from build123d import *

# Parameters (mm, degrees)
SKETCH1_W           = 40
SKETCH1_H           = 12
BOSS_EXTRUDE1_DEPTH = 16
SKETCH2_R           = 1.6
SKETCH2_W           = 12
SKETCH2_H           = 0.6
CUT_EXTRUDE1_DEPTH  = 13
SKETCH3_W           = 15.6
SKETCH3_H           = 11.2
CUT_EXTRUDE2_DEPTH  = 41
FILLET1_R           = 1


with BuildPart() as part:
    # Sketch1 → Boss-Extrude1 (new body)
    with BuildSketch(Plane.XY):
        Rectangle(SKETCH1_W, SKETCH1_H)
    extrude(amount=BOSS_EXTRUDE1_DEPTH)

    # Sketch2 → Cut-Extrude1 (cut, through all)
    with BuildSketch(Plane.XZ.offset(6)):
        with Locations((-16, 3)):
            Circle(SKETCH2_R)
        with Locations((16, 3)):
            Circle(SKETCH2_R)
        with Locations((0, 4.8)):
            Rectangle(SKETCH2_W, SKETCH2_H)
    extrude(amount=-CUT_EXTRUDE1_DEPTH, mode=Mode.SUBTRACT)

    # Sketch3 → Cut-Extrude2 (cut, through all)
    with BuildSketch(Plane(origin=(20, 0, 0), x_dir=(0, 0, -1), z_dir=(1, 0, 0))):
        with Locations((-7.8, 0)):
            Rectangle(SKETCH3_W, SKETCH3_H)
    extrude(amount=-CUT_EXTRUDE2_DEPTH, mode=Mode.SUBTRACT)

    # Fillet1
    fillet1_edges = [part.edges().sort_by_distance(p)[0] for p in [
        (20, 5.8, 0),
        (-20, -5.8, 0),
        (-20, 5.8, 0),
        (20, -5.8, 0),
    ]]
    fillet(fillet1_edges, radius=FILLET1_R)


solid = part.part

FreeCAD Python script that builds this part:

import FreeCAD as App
import Part
import Sketcher

V = App.Vector


def edges_at(feature, points):
    """Names of the edges that pass closest to the given points."""
    edges = feature.Shape.Edges
    near = lambda p: min(range(len(edges)), key=lambda i: edges[i].distToShape(Part.Vertex(*p))[0])
    return sorted({f"Edge{near(p) + 1}" for p in points})

doc = App.newDocument("Part")
body = doc.addObject("PartDesign::Body", "Body")

sketch1 = body.newObject("Sketcher::SketchObject", "Sketch")
sketch1.AttachmentSupport = (doc.getObject("XY_Plane"), [""])
sketch1.MapMode = "FlatFace"
sketch1.addGeometry([
    Part.LineSegment(V(-20, 6, 0), V(-20, -6, 0)),
    Part.LineSegment(V(-20, -6, 0), V(20, -6, 0)),
    Part.LineSegment(V(20, -6, 0), V(20, 6, 0)),
    Part.LineSegment(V(20, 6, 0), V(-20, 6, 0)),
], False)
sketch1.addConstraint([
    Sketcher.Constraint("Coincident", 0, 2, 1, 1),
    Sketcher.Constraint("Coincident", 1, 2, 2, 1),
    Sketcher.Constraint("Coincident", 2, 2, 3, 1),
    Sketcher.Constraint("Coincident", 3, 2, 0, 1),
    Sketcher.Constraint("Vertical", 0),
    Sketcher.Constraint("Horizontal", 1),
    Sketcher.Constraint("Vertical", 2),
    Sketcher.Constraint("Horizontal", 3),
    Sketcher.Constraint("Symmetric", 0, 2, 2, 2, -1, 1),
    Sketcher.Constraint("DistanceX", 1, 1, 1, 2, 40.0),
    Sketcher.Constraint("DistanceY", 0, 2, 0, 1, 12.0),
])
pad1 = body.newObject("PartDesign::Pad", "Pad")
pad1.Profile = sketch1
pad1.Length = 16

sketch2 = body.newObject("Sketcher::SketchObject", "Sketch001")
sketch2.AttachmentSupport = (doc.getObject("XZ_Plane"), [""])
sketch2.MapMode = "FlatFace"
sketch2.AttachmentOffset = App.Placement(V(0, 0, 6), App.Rotation())
sketch2.addGeometry([
    Part.Circle(V(-16, 3, 0), V(0, 0, 1), 1.6),
    Part.Circle(V(16, 3, 0), V(0, 0, 1), 1.6),
    Part.LineSegment(V(-6, 5.1, 0), V(-6, 4.5, 0)),
    Part.LineSegment(V(-6, 4.5, 0), V(6, 4.5, 0)),
    Part.LineSegment(V(6, 4.5, 0), V(6, 5.1, 0)),
    Part.LineSegment(V(6, 5.1, 0), V(-6, 5.1, 0)),
], False)
sketch2.addConstraint([
    Sketcher.Constraint("Coincident", 2, 2, 3, 1),
    Sketcher.Constraint("Coincident", 3, 2, 4, 1),
    Sketcher.Constraint("Coincident", 4, 2, 5, 1),
    Sketcher.Constraint("Coincident", 5, 2, 2, 1),
    Sketcher.Constraint("Vertical", 2),
    Sketcher.Constraint("Horizontal", 3),
    Sketcher.Constraint("Vertical", 4),
    Sketcher.Constraint("Horizontal", 5),
    Sketcher.Constraint("Equal", 0, 1),
    Sketcher.Constraint("Symmetric", 0, 3, 1, 3, -2),
    Sketcher.Constraint("Diameter", 0, 3.2),
    Sketcher.Constraint("DistanceX", 3, 1, 3, 2, 12.0),
    Sketcher.Constraint("DistanceY", 2, 2, 2, 1, 0.6),
    Sketcher.Constraint("DistanceX", 0, 3, -1, 1, 16.0),
    Sketcher.Constraint("DistanceY", -1, 1, 0, 3, 3.0),
    Sketcher.Constraint("DistanceX", 2, 2, -1, 1, 6.0),
    Sketcher.Constraint("DistanceY", -1, 1, 2, 2, 4.5),
])
pocket1 = body.newObject("PartDesign::Pocket", "Pocket")
pocket1.Profile = sketch2
pocket1.Type = "ThroughAll"

sketch3 = body.newObject("Sketcher::SketchObject", "Sketch002")
sketch3.AttachmentSupport = (doc.getObject("YZ_Plane"), [""])
sketch3.MapMode = "FlatFace"
sketch3.AttachmentOffset = App.Placement(V(0, 0, 20), App.Rotation())
sketch3.addGeometry([
    Part.LineSegment(V(6, 16, 0), V(-6, 16, 0)),
    Part.LineSegment(V(-6, 16, 0), V(-6, 0, 0)),
    Part.LineSegment(V(-6, 0, 0), V(6, 0, 0)),
    Part.LineSegment(V(6, 0, 0), V(6, 16, 0)),
], False)
sketch3.addConstraint([
    Sketcher.Constraint("Coincident", 0, 2, 1, 1),
    Sketcher.Constraint("Coincident", 1, 2, 2, 1),
    Sketcher.Constraint("Coincident", 2, 2, 3, 1),
    Sketcher.Constraint("Coincident", 3, 2, 0, 1),
    Sketcher.Constraint("Horizontal", 0),
    Sketcher.Constraint("Vertical", 1),
    Sketcher.Constraint("Horizontal", 2),
    Sketcher.Constraint("Vertical", 3),
    Sketcher.Constraint("Symmetric", 1, 2, 2, 2, -1, 1),
    Sketcher.Constraint("DistanceX", 0, 2, 0, 1, 11.2),
    Sketcher.Constraint("DistanceY", 1, 2, 1, 1, 15.6),
])
pocket2 = body.newObject("PartDesign::Pocket", "Pocket001")
pocket2.Profile = sketch3
pocket2.Type = "ThroughAll"
doc.recompute()

fillet = body.newObject("PartDesign::Fillet", "Fillet")
fillet.Base = (pocket2, edges_at(pocket2, [
    (20, 5.8, 0),
    (-20, -5.8, 0),
    (-20, 5.8, 0),
    (20, -5.8, 0),
]))
fillet.Radius = 1

doc.recompute()
